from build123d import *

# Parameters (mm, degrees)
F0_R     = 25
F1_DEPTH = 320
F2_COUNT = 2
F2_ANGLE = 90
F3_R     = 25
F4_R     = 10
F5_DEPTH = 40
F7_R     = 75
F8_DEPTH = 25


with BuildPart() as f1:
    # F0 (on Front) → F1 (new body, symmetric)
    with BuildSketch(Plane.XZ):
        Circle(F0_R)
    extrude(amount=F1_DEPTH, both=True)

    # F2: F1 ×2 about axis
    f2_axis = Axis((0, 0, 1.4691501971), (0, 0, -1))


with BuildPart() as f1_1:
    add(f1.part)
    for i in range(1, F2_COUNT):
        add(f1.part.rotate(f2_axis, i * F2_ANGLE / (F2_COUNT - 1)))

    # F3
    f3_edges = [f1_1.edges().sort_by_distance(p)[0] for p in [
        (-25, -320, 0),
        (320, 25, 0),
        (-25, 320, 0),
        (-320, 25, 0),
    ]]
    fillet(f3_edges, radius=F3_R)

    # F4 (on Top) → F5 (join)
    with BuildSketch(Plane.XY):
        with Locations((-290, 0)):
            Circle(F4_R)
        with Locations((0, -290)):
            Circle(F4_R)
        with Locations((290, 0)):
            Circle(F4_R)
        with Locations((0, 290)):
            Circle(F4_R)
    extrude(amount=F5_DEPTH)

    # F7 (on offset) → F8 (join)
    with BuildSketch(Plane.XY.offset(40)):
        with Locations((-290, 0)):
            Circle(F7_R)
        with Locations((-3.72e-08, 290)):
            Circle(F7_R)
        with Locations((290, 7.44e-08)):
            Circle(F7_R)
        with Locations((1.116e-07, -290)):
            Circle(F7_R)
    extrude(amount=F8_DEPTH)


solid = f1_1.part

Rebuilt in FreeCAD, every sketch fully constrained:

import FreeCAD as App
import Part
import Sketcher

V = App.Vector
Q = App.Units.Quantity


def edges_at(feature, points):
    """Names of the edges that pass closest to the given points."""
    edges = feature.Shape.Edges
    near = lambda p: min(range(len(edges)), key=lambda i: edges[i].distToShape(Part.Vertex(*p))[0])
    return sorted({f"Edge{near(p) + 1}" for p in points})

doc = App.newDocument("Part")
body = doc.addObject("PartDesign::Body", "Body")

# Sketch on XZ plane
sketch1 = body.newObject("Sketcher::SketchObject", "Sketch")
sketch1.AttachmentSupport = (doc.getObject("XZ_Plane"), [""])
sketch1.MapMode = "FlatFace"
sketch1.addGeometry(Part.Circle(V(0, 0, 0), V(0, 0, 1), 25), False)
sketch1.addConstraint([
    Sketcher.Constraint("Coincident", 0, 3, -1, 1),
    Sketcher.Constraint("Diameter", 0, Q("50 mm")),
])
pad1 = body.newObject("PartDesign::Pad", "Pad")
pad1.Profile = sketch1
pad1.Length = 640
pad1.Midplane = True
body2 = doc.addObject("PartDesign::Body", "Body001")
doc.recompute()

body2.BaseFeature = body
doc.recompute()

body.Placement = App.Placement(V(0, 0, 0), App.Rotation(V(0, 0, -1), 90))
boolean = body2.newObject("PartDesign::Boolean", "Boolean")
boolean.Type = "Fuse"
boolean.addObjects([body])
doc.recompute()

fillet = body2.newObject("PartDesign::Fillet", "Fillet")
fillet.Base = (boolean, edges_at(boolean, [
    (-25, -320, 0),
    (320, 25, 0),
    (-25, 320, 0),
    (-320, 25, 0),
]))
fillet.Radius = 25

# Sketch on XY plane
sketch2 = body2.newObject("Sketcher::SketchObject", "Sketch001")
sketch2.AttachmentSupport = (doc.getObject("XY_Plane001"), [""])
sketch2.MapMode = "FlatFace"
sketch2.addGeometry([
    Part.Circle(V(-290, 0, 0), V(0, 0, 1), 10),
    Part.Circle(V(0, -290, 0), V(0, 0, 1), 10),
    Part.Circle(V(290, 0, 0), V(0, 0, 1), 10),
    Part.Circle(V(0, 290, 0), V(0, 0, 1), 10),
], False)
sketch2.addConstraint([
    Sketcher.Constraint("Equal", 0, 1),
    Sketcher.Constraint("Equal", 1, 2),
    Sketcher.Constraint("Equal", 2, 3),
    Sketcher.Constraint("Symmetric", 0, 3, 2, 3, -1, 1),
    Sketcher.Constraint("Symmetric", 1, 3, 3, 3, -1, 1),
    Sketcher.Constraint("PointOnObject", 0, 3, -1),
    Sketcher.Constraint("PointOnObject", 1, 3, -2),
    Sketcher.Constraint("Diameter", 0, Q("20 mm")),
    Sketcher.Constraint("DistanceX", 0, 3, -1, 1, Q("290 mm")),
    Sketcher.Constraint("DistanceY", 1, 3, -1, 1, Q("290 mm")),
])
pad2 = body2.newObject("PartDesign::Pad", "Pad001")
pad2.Profile = sketch2
pad2.Length = 40

# Sketch on XY plane
sketch3 = body2.newObject("Sketcher::SketchObject", "Sketch002")
sketch3.AttachmentSupport = (doc.getObject("XY_Plane001"), [""])
sketch3.MapMode = "FlatFace"
sketch3.AttachmentOffset = App.Placement(V(0, 0, 40), App.Rotation())
sketch3.addGeometry([
    Part.Circle(V(-290, 0, 0), V(0, 0, 1), 75),
    Part.Circle(V(0, 290, 0), V(0, 0, 1), 75),
    Part.Circle(V(290, 0, 0), V(0, 0, 1), 75),
    Part.Circle(V(0, -290, 0), V(0, 0, 1), 75),
], False)
sketch3.addConstraint([
    Sketcher.Constraint("Equal", 0, 1),
    Sketcher.Constraint("Equal", 1, 2),
    Sketcher.Constraint("Equal", 2, 3),
    Sketcher.Constraint("Symmetric", 0, 3, 2, 3, -1, 1),
    Sketcher.Constraint("Symmetric", 1, 3, 3, 3, -1, 1),
    Sketcher.Constraint("PointOnObject", 0, 3, -1),
    Sketcher.Constraint("PointOnObject", 1, 3, -2),
    Sketcher.Constraint("Diameter", 0, Q("150 mm")),
    Sketcher.Constraint("DistanceX", 0, 3, -1, 1, Q("290 mm")),
    Sketcher.Constraint("DistanceY", -1, 1, 1, 3, Q("290 mm")),
])
pad3 = body2.newObject("PartDesign::Pad", "Pad002")
pad3.Profile = sketch3
pad3.Length = 25

doc.recompute()
